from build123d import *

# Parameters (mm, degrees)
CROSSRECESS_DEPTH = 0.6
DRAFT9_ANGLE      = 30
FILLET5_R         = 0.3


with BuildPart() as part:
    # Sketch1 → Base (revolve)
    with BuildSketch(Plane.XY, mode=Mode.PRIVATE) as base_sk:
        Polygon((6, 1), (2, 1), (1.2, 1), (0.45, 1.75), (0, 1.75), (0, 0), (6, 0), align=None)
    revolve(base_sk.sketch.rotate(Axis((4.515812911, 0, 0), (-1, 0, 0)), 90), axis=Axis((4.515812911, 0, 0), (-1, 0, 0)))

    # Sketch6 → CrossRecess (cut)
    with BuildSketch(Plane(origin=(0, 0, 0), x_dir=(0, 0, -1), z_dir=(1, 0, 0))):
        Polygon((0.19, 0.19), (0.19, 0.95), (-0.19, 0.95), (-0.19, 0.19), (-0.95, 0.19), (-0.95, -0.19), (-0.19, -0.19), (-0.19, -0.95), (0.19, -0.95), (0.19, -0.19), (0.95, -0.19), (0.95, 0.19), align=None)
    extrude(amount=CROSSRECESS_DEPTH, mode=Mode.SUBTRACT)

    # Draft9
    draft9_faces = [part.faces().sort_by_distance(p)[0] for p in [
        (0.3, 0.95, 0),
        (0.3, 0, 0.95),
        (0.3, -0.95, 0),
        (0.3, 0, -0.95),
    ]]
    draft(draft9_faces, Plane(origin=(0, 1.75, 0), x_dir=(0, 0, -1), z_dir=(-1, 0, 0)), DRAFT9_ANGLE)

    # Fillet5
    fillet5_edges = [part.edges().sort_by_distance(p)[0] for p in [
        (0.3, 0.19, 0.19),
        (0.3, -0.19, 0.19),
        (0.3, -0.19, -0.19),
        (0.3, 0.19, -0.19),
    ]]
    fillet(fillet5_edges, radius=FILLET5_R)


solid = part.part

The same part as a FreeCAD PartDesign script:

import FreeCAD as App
import Part
import Sketcher

V = App.Vector
Q = App.Units.Quantity


def edges_at(feature, points):
    """Names of the edges that pass closest to the given points."""
    edges = feature.Shape.Edges
    near = lambda p: min(range(len(edges)), key=lambda i: edges[i].distToShape(Part.Vertex(*p))[0])
    return sorted({f"Edge{near(p) + 1}" for p in points})


def faces_at(feature, points):
    """Names of the faces that lie closest to the given points."""
    faces = feature.Shape.Faces
    near = lambda p: min(range(len(faces)), key=lambda i: faces[i].distToShape(Part.Vertex(*p))[0])
    return sorted({f"Face{near(p) + 1}" for p in points})

doc = App.newDocument("Part")
body = doc.addObject("PartDesign::Body", "Body")

# Sketch on XY plane
sketch1 = body.newObject("Sketcher::SketchObject", "Sketch")
sketch1.AttachmentSupport = (doc.getObject("XY_Plane"), [""])
sketch1.MapMode = "FlatFace"
sketch1.addGeometry([
    Part.LineSegment(V(6, 1, 0), V(1.2, 1, 0)),  # 0
    Part.LineSegment(V(1.2, 1, 0), V(0.45, 1.75, 0)),  # 1
    Part.LineSegment(V(0.45, 1.75, 0), V(0, 1.75, 0)),  # 2
    Part.LineSegment(V(0, 1.75, 0), V(0, 0, 0)),  # 3
    Part.LineSegment(V(0, 0, 0), V(6, 0, 0)),  # 4
    Part.LineSegment(V(6, 0, 0), V(6, 1, 0)),  # 5
], False)
sketch1.addConstraint([
    Sketcher.Constraint("Coincident", 0, 2, 1, 1),
    Sketcher.Constraint("Coincident", 1, 2, 2, 1),
    Sketcher.Constraint("Coincident", 2, 2, 3, 1),
    Sketcher.Constraint("Coincident", 3, 2, 4, 1),
    Sketcher.Constraint("Coincident", 4, 2, 5, 1),
    Sketcher.Constraint("Coincident", 5, 2, 0, 1),
    Sketcher.Constraint("Horizontal", 0),
    Sketcher.Constraint("Horizontal", 2),
    Sketcher.Constraint("Vertical", 3),
    Sketcher.Constraint("Horizontal", 4),
    Sketcher.Constraint("Vertical", 5),
    Sketcher.Constraint("Coincident", 3, 2, -1, 1),
    Sketcher.Constraint("DistanceX", 4, 1, 4, 2, 6.0),
    Sketcher.Constraint("DistanceY", 5, 1, 5, 2, 1.0),
    Sketcher.Constraint("Angle", 1, Q("135 deg")),
    Sketcher.Constraint("DistanceX", 0, 2, 0, 1, 4.8),
    Sketcher.Constraint("DistanceX", 2, 2, 2, 1, 0.45),
])
revolution = body.newObject("PartDesign::Revolution", "Revolution")
revolution.Profile = sketch1
revolution.ReferenceAxis = (sketch1, ["H_Axis"])
revolution.Angle = 360

# Sketch on YZ plane
sketch2 = body.newObject("Sketcher::SketchObject", "Sketch001")
sketch2.AttachmentSupport = (doc.getObject("YZ_Plane"), [""])
sketch2.MapMode = "FlatFace"
sketch2.addGeometry([
    Part.LineSegment(V(0.19, -0.19, 0), V(0.95, -0.19, 0)),  # 0
    Part.LineSegment(V(0.95, -0.19, 0), V(0.95, 0.19, 0)),  # 1
    Part.LineSegment(V(0.95, 0.19, 0), V(0.19, 0.19, 0)),  # 2
    Part.LineSegment(V(0.19, 0.19, 0), V(0.19, 0.95, 0)),  # 3
    Part.LineSegment(V(0.19, 0.95, 0), V(-0.19, 0.95, 0)),  # 4
    Part.LineSegment(V(-0.19, 0.95, 0), V(-0.19, 0.19, 0)),  # 5
    Part.LineSegment(V(-0.19, 0.19, 0), V(-0.95, 0.19, 0)),  # 6
    Part.LineSegment(V(-0.95, 0.19, 0), V(-0.95, -0.19, 0)),  # 7
    Part.LineSegment(V(-0.95, -0.19, 0), V(-0.19, -0.19, 0)),  # 8
    Part.LineSegment(V(-0.19, -0.19, 0), V(-0.19, -0.95, 0)),  # 9
    Part.LineSegment(V(-0.19, -0.95, 0), V(0.19, -0.95, 0)),  # 10
    Part.LineSegment(V(0.19, -0.95, 0), V(0.19, -0.19, 0)),  # 11
], False)
sketch2.addConstraint([
    Sketcher.Constraint("Coincident", 0, 2, 1, 1),
    Sketcher.Constraint("Coincident", 1, 2, 2, 1),
    Sketcher.Constraint("Coincident", 2, 2, 3, 1),
    Sketcher.Constraint("Coincident", 3, 2, 4, 1),
    Sketcher.Constraint("Coincident", 4, 2, 5, 1),
    Sketcher.Constraint("Coincident", 5, 2, 6, 1),
    Sketcher.Constraint("Coincident", 6, 2, 7, 1),
    Sketcher.Constraint("Coincident", 7, 2, 8, 1),
    Sketcher.Constraint("Coincident", 8, 2, 9, 1),
    Sketcher.Constraint("Coincident", 9, 2, 10, 1),
    Sketcher.Constraint("Coincident", 10, 2, 11, 1),
    Sketcher.Constraint("Coincident", 11, 2, 0, 1),
    Sketcher.Constraint("Horizontal", 0),
    Sketcher.Constraint("Vertical", 1),
    Sketcher.Constraint("Horizontal", 2),
    Sketcher.Constraint("Vertical", 3),
    Sketcher.Constraint("Horizontal", 4),
    Sketcher.Constraint("Vertical", 5),
    Sketcher.Constraint("Horizontal", 6),
    Sketcher.Constraint("Vertical", 7),
    Sketcher.Constraint("Horizontal", 8),
    Sketcher.Constraint("Vertical", 9),
    Sketcher.Constraint("Horizontal", 10),
    Sketcher.Constraint("Vertical", 11),
    Sketcher.Constraint("Symmetric", 0, 2, 6, 2, -1, 1),
    Sketcher.Constraint("Symmetric", 2, 2, 8, 2, -1, 1),
    Sketcher.Constraint("Symmetric", 4, 2, 10, 2, -1, 1),
    Sketcher.Constraint("Symmetric", 2, 2, 5, 2, -2),
    Sketcher.Constraint("Equal", 10, 1),
    Sketcher.Constraint("Equal", 8, 3),
    Sketcher.Constraint("DistanceX", 0, 1, 0, 2, 0.76),
    Sketcher.Constraint("DistanceX", 4, 2, 4, 1, 0.38),
])
pocket1 = body.newObject("PartDesign::Pocket", "Pocket")
pocket1.Profile = sketch2
pocket1.Length = 0.6
pocket1.Reversed = True
doc.recompute()

draft = body.newObject("PartDesign::Draft", "Draft")
draft.Base = (pocket1, faces_at(pocket1, [
    (0.3, 0.95, 0),
    (0.3, 0, 0.95),
    (0.3, -0.95, 0),
    (0.3, 0, -0.95),
]))
draft.NeutralPlane = (doc.getObject("YZ_Plane"), [""])
draft.Angle = 30
draft.Reversed = True
doc.recompute()

fillet = body.newObject("PartDesign::Fillet", "Fillet")
fillet.Base = (draft, edges_at(draft, [
    (0.3, 0.19, 0.19),
    (0.3, -0.19, 0.19),
    (0.3, -0.19, -0.19),
    (0.3, 0.19, -0.19),
]))
fillet.Radius = 0.3

doc.recompute()
